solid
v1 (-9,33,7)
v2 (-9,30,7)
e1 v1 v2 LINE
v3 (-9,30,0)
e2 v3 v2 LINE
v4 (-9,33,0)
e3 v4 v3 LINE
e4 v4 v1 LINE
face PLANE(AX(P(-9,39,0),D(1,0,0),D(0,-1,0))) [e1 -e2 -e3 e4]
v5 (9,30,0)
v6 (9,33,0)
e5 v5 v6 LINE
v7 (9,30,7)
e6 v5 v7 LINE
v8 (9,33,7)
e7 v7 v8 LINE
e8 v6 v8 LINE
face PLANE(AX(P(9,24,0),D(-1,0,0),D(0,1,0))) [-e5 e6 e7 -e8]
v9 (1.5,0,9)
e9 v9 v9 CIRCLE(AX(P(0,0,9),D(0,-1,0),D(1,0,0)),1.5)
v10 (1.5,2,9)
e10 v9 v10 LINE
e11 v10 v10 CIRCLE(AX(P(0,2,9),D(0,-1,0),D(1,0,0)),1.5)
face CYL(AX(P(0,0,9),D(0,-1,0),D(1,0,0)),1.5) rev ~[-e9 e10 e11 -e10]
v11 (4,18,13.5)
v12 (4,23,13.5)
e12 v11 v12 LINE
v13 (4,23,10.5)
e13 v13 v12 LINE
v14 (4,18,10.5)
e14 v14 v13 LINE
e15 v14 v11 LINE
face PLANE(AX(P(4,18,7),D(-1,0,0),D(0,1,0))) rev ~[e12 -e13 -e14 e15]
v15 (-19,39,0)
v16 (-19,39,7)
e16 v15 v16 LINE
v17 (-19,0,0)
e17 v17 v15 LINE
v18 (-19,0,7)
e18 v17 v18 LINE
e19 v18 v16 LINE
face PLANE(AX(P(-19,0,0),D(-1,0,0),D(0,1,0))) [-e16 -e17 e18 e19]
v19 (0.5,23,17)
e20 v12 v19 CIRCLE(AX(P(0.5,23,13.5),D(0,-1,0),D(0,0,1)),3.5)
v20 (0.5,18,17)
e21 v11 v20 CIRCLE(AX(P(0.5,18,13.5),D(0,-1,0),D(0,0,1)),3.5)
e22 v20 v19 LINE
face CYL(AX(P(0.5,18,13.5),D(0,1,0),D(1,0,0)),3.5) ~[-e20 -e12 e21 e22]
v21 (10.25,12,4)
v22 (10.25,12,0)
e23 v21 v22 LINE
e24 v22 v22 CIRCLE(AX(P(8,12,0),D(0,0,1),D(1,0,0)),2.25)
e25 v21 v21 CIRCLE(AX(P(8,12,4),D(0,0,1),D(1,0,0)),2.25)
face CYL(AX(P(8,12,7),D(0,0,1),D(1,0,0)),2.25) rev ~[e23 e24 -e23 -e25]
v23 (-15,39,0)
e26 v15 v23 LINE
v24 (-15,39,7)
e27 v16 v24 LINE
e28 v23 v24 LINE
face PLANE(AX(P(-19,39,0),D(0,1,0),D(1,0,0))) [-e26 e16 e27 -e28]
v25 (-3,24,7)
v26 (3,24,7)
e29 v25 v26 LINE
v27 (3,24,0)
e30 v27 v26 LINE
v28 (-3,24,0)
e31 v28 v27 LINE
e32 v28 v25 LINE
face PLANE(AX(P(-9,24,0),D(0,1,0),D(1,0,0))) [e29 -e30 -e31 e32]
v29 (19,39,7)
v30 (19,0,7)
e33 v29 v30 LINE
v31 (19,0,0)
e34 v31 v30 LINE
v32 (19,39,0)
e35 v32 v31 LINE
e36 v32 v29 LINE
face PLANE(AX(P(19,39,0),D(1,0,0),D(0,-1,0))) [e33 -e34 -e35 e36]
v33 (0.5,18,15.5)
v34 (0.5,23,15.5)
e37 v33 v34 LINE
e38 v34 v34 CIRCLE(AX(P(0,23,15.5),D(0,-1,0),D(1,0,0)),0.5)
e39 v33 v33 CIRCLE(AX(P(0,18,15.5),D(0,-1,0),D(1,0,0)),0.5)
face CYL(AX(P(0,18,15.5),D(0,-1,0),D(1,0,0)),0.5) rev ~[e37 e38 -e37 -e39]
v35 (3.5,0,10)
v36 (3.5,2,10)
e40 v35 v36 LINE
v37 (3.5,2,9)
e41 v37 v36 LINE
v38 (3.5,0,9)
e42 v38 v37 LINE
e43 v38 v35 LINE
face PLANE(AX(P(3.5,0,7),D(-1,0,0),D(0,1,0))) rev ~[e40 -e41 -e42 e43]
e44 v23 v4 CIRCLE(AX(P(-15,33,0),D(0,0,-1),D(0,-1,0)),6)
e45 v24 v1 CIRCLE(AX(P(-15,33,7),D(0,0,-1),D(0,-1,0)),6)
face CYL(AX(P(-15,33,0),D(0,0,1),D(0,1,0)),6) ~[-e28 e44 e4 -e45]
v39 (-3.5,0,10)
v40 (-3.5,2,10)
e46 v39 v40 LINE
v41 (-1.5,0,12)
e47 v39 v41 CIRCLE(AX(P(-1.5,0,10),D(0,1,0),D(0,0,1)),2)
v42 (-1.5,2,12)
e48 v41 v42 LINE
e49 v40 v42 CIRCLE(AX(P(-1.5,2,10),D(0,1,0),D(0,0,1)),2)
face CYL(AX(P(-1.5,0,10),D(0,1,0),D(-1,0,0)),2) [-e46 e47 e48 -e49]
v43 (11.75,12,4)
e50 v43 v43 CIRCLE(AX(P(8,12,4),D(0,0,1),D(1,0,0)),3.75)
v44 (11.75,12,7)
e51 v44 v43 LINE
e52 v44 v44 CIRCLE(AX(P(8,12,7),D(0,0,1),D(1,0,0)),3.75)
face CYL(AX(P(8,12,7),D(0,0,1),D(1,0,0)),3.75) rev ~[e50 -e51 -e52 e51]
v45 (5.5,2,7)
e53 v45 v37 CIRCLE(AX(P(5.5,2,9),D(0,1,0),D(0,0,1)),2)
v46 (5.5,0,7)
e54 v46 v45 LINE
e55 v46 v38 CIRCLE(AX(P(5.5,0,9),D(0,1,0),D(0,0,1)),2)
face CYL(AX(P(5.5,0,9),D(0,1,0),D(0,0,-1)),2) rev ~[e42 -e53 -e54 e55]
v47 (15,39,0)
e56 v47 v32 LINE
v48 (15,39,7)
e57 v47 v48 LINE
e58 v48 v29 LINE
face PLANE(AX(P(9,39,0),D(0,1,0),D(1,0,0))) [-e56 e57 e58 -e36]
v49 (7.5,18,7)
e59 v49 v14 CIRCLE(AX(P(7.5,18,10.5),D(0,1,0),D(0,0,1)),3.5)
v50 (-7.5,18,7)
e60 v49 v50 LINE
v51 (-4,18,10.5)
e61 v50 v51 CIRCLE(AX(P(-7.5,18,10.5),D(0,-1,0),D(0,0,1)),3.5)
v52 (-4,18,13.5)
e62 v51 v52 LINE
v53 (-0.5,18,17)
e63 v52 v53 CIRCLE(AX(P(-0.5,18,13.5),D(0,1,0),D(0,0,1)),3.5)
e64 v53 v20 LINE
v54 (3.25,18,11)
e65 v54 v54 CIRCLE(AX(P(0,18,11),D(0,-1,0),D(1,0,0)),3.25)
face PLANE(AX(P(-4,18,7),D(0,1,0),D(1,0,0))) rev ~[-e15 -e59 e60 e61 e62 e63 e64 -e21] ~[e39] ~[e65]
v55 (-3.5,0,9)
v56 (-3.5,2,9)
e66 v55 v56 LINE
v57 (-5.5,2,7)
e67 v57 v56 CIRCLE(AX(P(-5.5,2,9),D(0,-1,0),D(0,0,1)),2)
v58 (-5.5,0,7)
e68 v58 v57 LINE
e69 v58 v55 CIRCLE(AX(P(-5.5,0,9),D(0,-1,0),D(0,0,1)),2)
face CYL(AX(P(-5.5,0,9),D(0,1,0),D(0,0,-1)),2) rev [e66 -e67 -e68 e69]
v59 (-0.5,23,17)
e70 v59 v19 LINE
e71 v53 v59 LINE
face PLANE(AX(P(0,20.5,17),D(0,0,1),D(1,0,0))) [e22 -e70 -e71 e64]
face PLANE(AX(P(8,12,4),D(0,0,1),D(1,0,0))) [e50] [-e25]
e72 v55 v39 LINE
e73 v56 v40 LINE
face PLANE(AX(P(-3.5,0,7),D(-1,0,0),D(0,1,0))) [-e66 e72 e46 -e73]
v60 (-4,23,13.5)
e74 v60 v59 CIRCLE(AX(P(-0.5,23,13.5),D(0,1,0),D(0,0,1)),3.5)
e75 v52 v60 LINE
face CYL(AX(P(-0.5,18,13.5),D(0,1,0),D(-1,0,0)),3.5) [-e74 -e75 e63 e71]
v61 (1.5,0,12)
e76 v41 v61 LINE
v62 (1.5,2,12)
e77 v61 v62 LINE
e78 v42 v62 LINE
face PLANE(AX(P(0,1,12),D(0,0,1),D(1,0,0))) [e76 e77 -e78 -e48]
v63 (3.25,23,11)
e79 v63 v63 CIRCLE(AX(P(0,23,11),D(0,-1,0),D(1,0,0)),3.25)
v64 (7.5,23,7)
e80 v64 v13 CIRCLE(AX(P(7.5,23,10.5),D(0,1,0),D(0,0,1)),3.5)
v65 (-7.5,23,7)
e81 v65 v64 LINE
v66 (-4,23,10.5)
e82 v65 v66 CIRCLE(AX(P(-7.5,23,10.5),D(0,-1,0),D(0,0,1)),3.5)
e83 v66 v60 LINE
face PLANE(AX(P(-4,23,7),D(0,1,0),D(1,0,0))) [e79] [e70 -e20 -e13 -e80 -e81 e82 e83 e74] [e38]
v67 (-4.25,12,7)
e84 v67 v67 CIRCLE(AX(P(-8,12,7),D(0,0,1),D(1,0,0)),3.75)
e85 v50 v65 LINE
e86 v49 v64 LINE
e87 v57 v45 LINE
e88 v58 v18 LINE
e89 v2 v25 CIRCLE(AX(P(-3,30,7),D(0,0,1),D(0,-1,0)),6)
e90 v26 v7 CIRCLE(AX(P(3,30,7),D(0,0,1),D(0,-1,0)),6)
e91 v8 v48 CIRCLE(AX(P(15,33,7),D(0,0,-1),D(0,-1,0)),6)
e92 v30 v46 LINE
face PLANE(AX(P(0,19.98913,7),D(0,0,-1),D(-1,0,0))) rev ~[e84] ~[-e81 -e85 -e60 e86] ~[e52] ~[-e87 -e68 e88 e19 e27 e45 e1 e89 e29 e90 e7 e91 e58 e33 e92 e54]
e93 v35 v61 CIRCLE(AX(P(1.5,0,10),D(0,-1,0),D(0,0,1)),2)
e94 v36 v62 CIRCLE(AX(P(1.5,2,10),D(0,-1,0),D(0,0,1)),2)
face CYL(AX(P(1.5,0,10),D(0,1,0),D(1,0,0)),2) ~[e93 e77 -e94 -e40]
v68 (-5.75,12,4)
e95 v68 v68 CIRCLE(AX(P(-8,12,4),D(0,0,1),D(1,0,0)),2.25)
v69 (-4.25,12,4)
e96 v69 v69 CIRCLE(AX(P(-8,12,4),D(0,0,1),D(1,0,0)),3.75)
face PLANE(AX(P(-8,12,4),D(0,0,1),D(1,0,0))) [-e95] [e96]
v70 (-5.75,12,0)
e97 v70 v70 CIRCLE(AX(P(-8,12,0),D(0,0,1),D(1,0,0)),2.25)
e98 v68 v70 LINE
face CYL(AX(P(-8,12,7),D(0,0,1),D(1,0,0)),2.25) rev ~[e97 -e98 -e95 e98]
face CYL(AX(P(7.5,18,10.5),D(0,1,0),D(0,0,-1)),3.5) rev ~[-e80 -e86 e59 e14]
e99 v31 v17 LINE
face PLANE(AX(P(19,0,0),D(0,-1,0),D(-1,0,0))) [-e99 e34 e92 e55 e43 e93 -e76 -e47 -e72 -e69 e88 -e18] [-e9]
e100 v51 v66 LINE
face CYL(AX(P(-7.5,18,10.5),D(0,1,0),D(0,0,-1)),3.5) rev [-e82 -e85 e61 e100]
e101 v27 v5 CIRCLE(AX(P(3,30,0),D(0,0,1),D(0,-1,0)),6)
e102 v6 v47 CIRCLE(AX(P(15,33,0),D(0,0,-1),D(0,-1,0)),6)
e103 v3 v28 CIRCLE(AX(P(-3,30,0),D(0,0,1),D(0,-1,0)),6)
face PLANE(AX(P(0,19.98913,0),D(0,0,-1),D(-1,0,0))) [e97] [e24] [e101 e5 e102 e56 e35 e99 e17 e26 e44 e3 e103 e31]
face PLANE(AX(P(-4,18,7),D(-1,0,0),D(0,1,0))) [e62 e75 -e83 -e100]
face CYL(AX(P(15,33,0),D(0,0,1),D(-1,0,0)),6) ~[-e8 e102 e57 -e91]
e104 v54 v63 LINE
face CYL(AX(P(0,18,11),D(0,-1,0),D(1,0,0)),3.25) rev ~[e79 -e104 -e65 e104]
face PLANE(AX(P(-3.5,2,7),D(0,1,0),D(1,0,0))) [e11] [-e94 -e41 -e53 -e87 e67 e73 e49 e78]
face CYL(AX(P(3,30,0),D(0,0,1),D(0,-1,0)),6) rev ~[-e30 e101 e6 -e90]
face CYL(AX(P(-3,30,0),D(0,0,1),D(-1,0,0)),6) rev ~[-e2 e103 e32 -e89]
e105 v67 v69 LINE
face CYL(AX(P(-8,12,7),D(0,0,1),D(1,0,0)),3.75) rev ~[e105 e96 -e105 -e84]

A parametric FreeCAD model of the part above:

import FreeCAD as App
import Part
import Sketcher
from FreeCAD import Vector
Q = App.Units.Quantity


def edges_at(feature, points):
    """Names of the edges that pass closest to the given points."""
    edges = feature.Shape.Edges
    near = lambda p: min(range(len(edges)), key=lambda i: edges[i].distToShape(Part.Vertex(*p))[0])
    return sorted({f"Edge{near(p) + 1}" for p in points})

doc = App.newDocument("Part")
params = doc.addObject("Spreadsheet::Sheet", "Params")
for row, (alias, value) in enumerate([
    ("sketch1_width", "38 mm"),
    ("sketch1_width2", "10 mm"),
    ("sketch1_height", "39 mm"),
    ("sketch1_height2", "15 mm"),
    ("pad1_length", "7 mm"),
    ("fillet_radius", "6 mm"),
    ("sketch2_diameter", "4.5 mm"),
    ("pocket1_length", "8 mm"),
    ("sketch3_width", "8 mm"),
    ("sketch3_height", "5 mm"),
    ("pad2_length", "10 mm"),
    ("fillet2_radius", "3.5 mm"),
    ("sketch4_diameter", "1 mm"),
    ("sketch4_diameter2", "6.5 mm"),
    ("pocket2_length", "7 mm"),
    ("sketch5_width", "7 mm"),
    ("sketch5_height", "2 mm"),
    ("pad3_length", "5 mm"),
    ("sketch6_diameter", "3 mm"),
    ("pocket3_length", "5 mm"),
    ("fillet3_radius", "2 mm"),
    ("sketch7_diameter", "7.5 mm"),
    ("pocket4_length", "3 mm"),
], start=1):
    params.set(f"A{row}", alias)
    params.set(f"B{row}", "=" + value)
    params.setAlias(f"B{row}", alias)

body = doc.addObject("PartDesign::Body", "Body")

# Sketch on XY plane
sketch1 = doc.addObject("Sketcher::SketchObject", "Sketch")
body.addObject(sketch1)
sketch1.AttachmentSupport = (doc.XY_Plane, [""])
sketch1.MapMode = "FlatFace"
sketch1.addGeometry([
    Part.LineSegment(Vector(-19, 0, 0), Vector(19, 0, 0)),  # 0
    Part.LineSegment(Vector(19, 0, 0), Vector(19, 39, 0)),  # 1
    Part.LineSegment(Vector(19, 39, 0), Vector(9, 39, 0)),  # 2
    Part.LineSegment(Vector(9, 39, 0), Vector(9, 24, 0)),  # 3
    Part.LineSegment(Vector(9, 24, 0), Vector(-9, 24, 0)),  # 4
    Part.LineSegment(Vector(-9, 24, 0), Vector(-9, 39, 0)),  # 5
    Part.LineSegment(Vector(-9, 39, 0), Vector(-19, 39, 0)),  # 6
    Part.LineSegment(Vector(-19, 39, 0), Vector(-19, 0, 0)),  # 7
], False)
sketch1.addConstraint([
    Sketcher.Constraint("Coincident", 0, 2, 1, 1),
    Sketcher.Constraint("Coincident", 1, 2, 2, 1),
    Sketcher.Constraint("Coincident", 2, 2, 3, 1),
    Sketcher.Constraint("Coincident", 3, 2, 4, 1),
    Sketcher.Constraint("Coincident", 4, 2, 5, 1),
    Sketcher.Constraint("Coincident", 5, 2, 6, 1),
    Sketcher.Constraint("Coincident", 6, 2, 7, 1),
    Sketcher.Constraint("Coincident", 7, 2, 0, 1),
    Sketcher.Constraint("Horizontal", 0),
    Sketcher.Constraint("Vertical", 1),
    Sketcher.Constraint("Horizontal", 2),
    Sketcher.Constraint("Vertical", 3),
    Sketcher.Constraint("Horizontal", 4),
    Sketcher.Constraint("Vertical", 5),
    Sketcher.Constraint("Horizontal", 6),
    Sketcher.Constraint("Vertical", 7),
    Sketcher.Constraint("Symmetric", 0, 2, 7, 2, -1, 1),
    Sketcher.Constraint("Symmetric", 2, 2, 5, 2, -2),
    Sketcher.Constraint("DistanceX", 0, 1, 0, 2, Q("38 mm")),
    Sketcher.Constraint("DistanceX", 2, 2, 2, 1, Q("10 mm")),
    Sketcher.Constraint("DistanceY", 1, 1, 1, 2, Q("39 mm")),
    Sketcher.Constraint("DistanceY", 3, 2, 3, 1, Q("15 mm")),
])
sketch1.setExpression("Constraints[18]", "Params.sketch1_width")
sketch1.setExpression("Constraints[19]", "Params.sketch1_width2")
sketch1.setExpression("Constraints[20]", "Params.sketch1_height")
sketch1.setExpression("Constraints[21]", "Params.sketch1_height2")
pad1 = doc.addObject("PartDesign::Pad", "Pad")
body.addObject(pad1)
pad1.Profile = sketch1
pad1.setExpression("Length", "Params.pad1_length")
doc.recompute()

fillet = doc.addObject("PartDesign::Fillet", "Fillet")
body.addObject(fillet)
fillet.Base = (pad1, edges_at(pad1, [
    (-9, 39, 3.5),
    (-9, 24, 3.5),
    (9, 39, 3.5),
    (9, 24, 3.5),
]))
fillet.setExpression("Radius", "Params.fillet_radius")

# Sketch on XY plane
sketch2 = doc.addObject("Sketcher::SketchObject", "Sketch001")
body.addObject(sketch2)
sketch2.AttachmentSupport = (doc.XY_Plane, [""])
sketch2.MapMode = "FlatFace"
sketch2.AttachmentOffset = App.Placement(Vector(0, 0, 7), App.Rotation())
sketch2.addGeometry([
    Part.Circle(Vector(-8, 12, 0), Vector(0, 0, 1), 2.2),
    Part.Circle(Vector(8, 12, 0), Vector(0, 0, 1), 2.2),
], False)
sketch2.addConstraint([
    Sketcher.Constraint("Equal", 0, 1),
    Sketcher.Constraint("Symmetric", 0, 3, 1, 3, -2),
    Sketcher.Constraint("Diameter", 0, Q("4.5 mm")),
    Sketcher.Constraint("DistanceX", 0, 3, -1, 1, Q("8 mm")),
    Sketcher.Constraint("DistanceY", -1, 1, 0, 3, Q("12 mm")),
])
sketch2.setExpression("Constraints[2]", "Params.sketch2_diameter")
pocket1 = doc.addObject("PartDesign::Pocket", "Pocket")
body.addObject(pocket1)
pocket1.Profile = sketch2
pocket1.setExpression("Length", "Params.pocket1_length")

# Sketch on XY plane
sketch3 = doc.addObject("Sketcher::SketchObject", "Sketch002")
body.addObject(sketch3)
sketch3.AttachmentSupport = (doc.XY_Plane, [""])
sketch3.MapMode = "FlatFace"
sketch3.AttachmentOffset = App.Placement(Vector(0, 0, 7), App.Rotation())
sketch3.addGeometry([
    Part.LineSegment(Vector(-4, 23, 0), Vector(-4, 18, 0)),
    Part.LineSegment(Vector(-4, 18, 0), Vector(4, 18, 0)),
    Part.LineSegment(Vector(4, 18, 0), Vector(4, 23, 0)),
    Part.LineSegment(Vector(4, 23, 0), Vector(-4, 23, 0)),
], False)
sketch3.addConstraint([
    Sketcher.Constraint("Coincident", 0, 2, 1, 1),
    Sketcher.Constraint("Coincident", 1, 2, 2, 1),
    Sketcher.Constraint("Coincident", 2, 2, 3, 1),
    Sketcher.Constraint("Coincident", 3, 2, 0, 1),
    Sketcher.Constraint("Vertical", 0),
    Sketcher.Constraint("Horizontal", 1),
    Sketcher.Constraint("Vertical", 2),
    Sketcher.Constraint("Horizontal", 3),
    Sketcher.Constraint("DistanceX", 1, 1, 1, 2, Q("8 mm")),
    Sketcher.Constraint("DistanceY", 0, 2, 0, 1, Q("5 mm")),
    Sketcher.Constraint("DistanceX", 0, 2, -1, 1, Q("4 mm")),
    Sketcher.Constraint("DistanceY", -1, 1, 0, 2, Q("18 mm")),
])
sketch3.setExpression("Constraints[8]", "Params.sketch3_width")
sketch3.setExpression("Constraints[9]", "Params.sketch3_height")
pad2 = doc.addObject("PartDesign::Pad", "Pad001")
body.addObject(pad2)
pad2.Profile = sketch3
pad2.setExpression("Length", "Params.pad2_length")
doc.recompute()

fillet2 = doc.addObject("PartDesign::Fillet", "Fillet001")
body.addObject(fillet2)
fillet2.Base = (pad2, edges_at(pad2, [
    (-4, 20.5, 7),
    (-4, 20.5, 17),
    (4, 20.5, 17),
    (4, 20.5, 7),
]))
fillet2.setExpression("Radius", "Params.fillet2_radius")

# Sketch on XZ plane
sketch4 = doc.addObject("Sketcher::SketchObject", "Sketch003")
body.addObject(sketch4)
sketch4.AttachmentSupport = (doc.XZ_Plane, [""])
sketch4.MapMode = "FlatFace"
sketch4.AttachmentOffset = App.Placement(Vector(0, 0, -18), App.Rotation())
sketch4.addGeometry([
    Part.Circle(Vector(0, 11, 0), Vector(0, 0, 1), 3.2),
    Part.Circle(Vector(0, 15.5, 0), Vector(0, 0, 1), 0.5),
], False)
sketch4.addConstraint([
    Sketcher.Constraint("PointOnObject", 0, 3, -2),
    Sketcher.Constraint("PointOnObject", 1, 3, -2),
    Sketcher.Constraint("Diameter", 1, Q("1 mm")),
    Sketcher.Constraint("Diameter", 0, Q("6.5 mm")),
    Sketcher.Constraint("DistanceY", -1, 1, 0, 3, Q("11 mm")),
    Sketcher.Constraint("DistanceY", -1, 1, 1, 3, Q("15.5 mm")),
])
sketch4.setExpression("Constraints[2]", "Params.sketch4_diameter")
sketch4.setExpression("Constraints[3]", "Params.sketch4_diameter2")
pocket2 = doc.addObject("PartDesign::Pocket", "Pocket001")
body.addObject(pocket2)
pocket2.Profile = sketch4
pocket2.setExpression("Length", "Params.pocket2_length")

# Sketch on XY plane
sketch5 = doc.addObject("Sketcher::SketchObject", "Sketch004")
body.addObject(sketch5)
sketch5.AttachmentSupport = (doc.XY_Plane, [""])
sketch5.MapMode = "FlatFace"
sketch5.AttachmentOffset = App.Placement(Vector(0, 0, 7), App.Rotation())
sketch5.addGeometry([
    Part.LineSegment(Vector(-3.5, 2, 0), Vector(-3.5, 0, 0)),
    Part.LineSegment(Vector(-3.5, 0, 0), Vector(3.5, 0, 0)),
    Part.LineSegment(Vector(3.5, 0, 0), Vector(3.5, 2, 0)),
    Part.LineSegment(Vector(3.5, 2, 0), Vector(-3.5, 2, 0)),
], False)
sketch5.addConstraint([
    Sketcher.Constraint("Coincident", 0, 2, 1, 1),
    Sketcher.Constraint("Coincident", 1, 2, 2, 1),
    Sketcher.Constraint("Coincident", 2, 2, 3, 1),
    Sketcher.Constraint("Coincident", 3, 2, 0, 1),
    Sketcher.Constraint("Vertical", 0),
    Sketcher.Constraint("Horizontal", 1),
    Sketcher.Constraint("Vertical", 2),
    Sketcher.Constraint("Horizontal", 3),
    Sketcher.Constraint("Symmetric", 0, 2, 1, 2, -1, 1),
    Sketcher.Constraint("DistanceX", 1, 1, 1, 2, Q("7 mm")),
    Sketcher.Constraint("DistanceY", 0, 2, 0, 1, Q("2 mm")),
])
sketch5.setExpression("Constraints[9]", "Params.sketch5_width")
sketch5.setExpression("Constraints[10]", "Params.sketch5_height")
pad3 = doc.addObject("PartDesign::Pad", "Pad002")
body.addObject(pad3)
pad3.Profile = sketch5
pad3.setExpression("Length", "Params.pad3_length")

# Sketch on XZ plane
sketch6 = doc.addObject("Sketcher::SketchObject", "Sketch005")
body.addObject(sketch6)
sketch6.AttachmentSupport = (doc.XZ_Plane, [""])
sketch6.MapMode = "FlatFace"
sketch6.addGeometry(Part.Circle(Vector(0, 9, 0), Vector(0, 0, 1), 1.5), False)
sketch6.addConstraint([
    Sketcher.Constraint("PointOnObject", 0, 3, -2),
    Sketcher.Constraint("Diameter", 0, Q("3 mm")),
    Sketcher.Constraint("DistanceY", -1, 1, 0, 3, Q("9 mm")),
])
sketch6.setExpression("Constraints[1]", "Params.sketch6_diameter")
pocket3 = doc.addObject("PartDesign::Pocket", "Pocket002")
body.addObject(pocket3)
pocket3.Profile = sketch6
pocket3.setExpression("Length", "Params.pocket3_length")
doc.recompute()

fillet3 = doc.addObject("PartDesign::Fillet", "Fillet002")
body.addObject(fillet3)
fillet3.Base = (pocket3, edges_at(pocket3, [
    (-3.5, 1, 12),
    (-3.5, 1, 7),
    (3.5, 1, 12),
    (3.5, 1, 7),
]))
fillet3.setExpression("Radius", "Params.fillet3_radius")

# Sketch on XY plane
sketch7 = doc.addObject("Sketcher::SketchObject", "Sketch006")
body.addObject(sketch7)
sketch7.AttachmentSupport = (doc.XY_Plane, [""])
sketch7.MapMode = "FlatFace"
sketch7.AttachmentOffset = App.Placement(Vector(0, 0, 7), App.Rotation())
sketch7.addGeometry([
    Part.Circle(Vector(-8, 12, 0), Vector(0, 0, 1), 3.8),
    Part.Circle(Vector(8, 12, 0), Vector(0, 0, 1), 3.8),
], False)
sketch7.addConstraint([
    Sketcher.Constraint("Equal", 0, 1),
    Sketcher.Constraint("Symmetric", 0, 3, 1, 3, -2),
    Sketcher.Constraint("Diameter", 0, Q("7.5 mm")),
    Sketcher.Constraint("DistanceX", 0, 3, -1, 1, Q("8 mm")),
    Sketcher.Constraint("DistanceY", -1, 1, 0, 3, Q("12 mm")),
])
sketch7.setExpression("Constraints[2]", "Params.sketch7_diameter")
pocket4 = doc.addObject("PartDesign::Pocket", "Pocket003")
body.addObject(pocket4)
pocket4.Profile = sketch7
pocket4.setExpression("Length", "Params.pocket4_length")

doc.recompute()
